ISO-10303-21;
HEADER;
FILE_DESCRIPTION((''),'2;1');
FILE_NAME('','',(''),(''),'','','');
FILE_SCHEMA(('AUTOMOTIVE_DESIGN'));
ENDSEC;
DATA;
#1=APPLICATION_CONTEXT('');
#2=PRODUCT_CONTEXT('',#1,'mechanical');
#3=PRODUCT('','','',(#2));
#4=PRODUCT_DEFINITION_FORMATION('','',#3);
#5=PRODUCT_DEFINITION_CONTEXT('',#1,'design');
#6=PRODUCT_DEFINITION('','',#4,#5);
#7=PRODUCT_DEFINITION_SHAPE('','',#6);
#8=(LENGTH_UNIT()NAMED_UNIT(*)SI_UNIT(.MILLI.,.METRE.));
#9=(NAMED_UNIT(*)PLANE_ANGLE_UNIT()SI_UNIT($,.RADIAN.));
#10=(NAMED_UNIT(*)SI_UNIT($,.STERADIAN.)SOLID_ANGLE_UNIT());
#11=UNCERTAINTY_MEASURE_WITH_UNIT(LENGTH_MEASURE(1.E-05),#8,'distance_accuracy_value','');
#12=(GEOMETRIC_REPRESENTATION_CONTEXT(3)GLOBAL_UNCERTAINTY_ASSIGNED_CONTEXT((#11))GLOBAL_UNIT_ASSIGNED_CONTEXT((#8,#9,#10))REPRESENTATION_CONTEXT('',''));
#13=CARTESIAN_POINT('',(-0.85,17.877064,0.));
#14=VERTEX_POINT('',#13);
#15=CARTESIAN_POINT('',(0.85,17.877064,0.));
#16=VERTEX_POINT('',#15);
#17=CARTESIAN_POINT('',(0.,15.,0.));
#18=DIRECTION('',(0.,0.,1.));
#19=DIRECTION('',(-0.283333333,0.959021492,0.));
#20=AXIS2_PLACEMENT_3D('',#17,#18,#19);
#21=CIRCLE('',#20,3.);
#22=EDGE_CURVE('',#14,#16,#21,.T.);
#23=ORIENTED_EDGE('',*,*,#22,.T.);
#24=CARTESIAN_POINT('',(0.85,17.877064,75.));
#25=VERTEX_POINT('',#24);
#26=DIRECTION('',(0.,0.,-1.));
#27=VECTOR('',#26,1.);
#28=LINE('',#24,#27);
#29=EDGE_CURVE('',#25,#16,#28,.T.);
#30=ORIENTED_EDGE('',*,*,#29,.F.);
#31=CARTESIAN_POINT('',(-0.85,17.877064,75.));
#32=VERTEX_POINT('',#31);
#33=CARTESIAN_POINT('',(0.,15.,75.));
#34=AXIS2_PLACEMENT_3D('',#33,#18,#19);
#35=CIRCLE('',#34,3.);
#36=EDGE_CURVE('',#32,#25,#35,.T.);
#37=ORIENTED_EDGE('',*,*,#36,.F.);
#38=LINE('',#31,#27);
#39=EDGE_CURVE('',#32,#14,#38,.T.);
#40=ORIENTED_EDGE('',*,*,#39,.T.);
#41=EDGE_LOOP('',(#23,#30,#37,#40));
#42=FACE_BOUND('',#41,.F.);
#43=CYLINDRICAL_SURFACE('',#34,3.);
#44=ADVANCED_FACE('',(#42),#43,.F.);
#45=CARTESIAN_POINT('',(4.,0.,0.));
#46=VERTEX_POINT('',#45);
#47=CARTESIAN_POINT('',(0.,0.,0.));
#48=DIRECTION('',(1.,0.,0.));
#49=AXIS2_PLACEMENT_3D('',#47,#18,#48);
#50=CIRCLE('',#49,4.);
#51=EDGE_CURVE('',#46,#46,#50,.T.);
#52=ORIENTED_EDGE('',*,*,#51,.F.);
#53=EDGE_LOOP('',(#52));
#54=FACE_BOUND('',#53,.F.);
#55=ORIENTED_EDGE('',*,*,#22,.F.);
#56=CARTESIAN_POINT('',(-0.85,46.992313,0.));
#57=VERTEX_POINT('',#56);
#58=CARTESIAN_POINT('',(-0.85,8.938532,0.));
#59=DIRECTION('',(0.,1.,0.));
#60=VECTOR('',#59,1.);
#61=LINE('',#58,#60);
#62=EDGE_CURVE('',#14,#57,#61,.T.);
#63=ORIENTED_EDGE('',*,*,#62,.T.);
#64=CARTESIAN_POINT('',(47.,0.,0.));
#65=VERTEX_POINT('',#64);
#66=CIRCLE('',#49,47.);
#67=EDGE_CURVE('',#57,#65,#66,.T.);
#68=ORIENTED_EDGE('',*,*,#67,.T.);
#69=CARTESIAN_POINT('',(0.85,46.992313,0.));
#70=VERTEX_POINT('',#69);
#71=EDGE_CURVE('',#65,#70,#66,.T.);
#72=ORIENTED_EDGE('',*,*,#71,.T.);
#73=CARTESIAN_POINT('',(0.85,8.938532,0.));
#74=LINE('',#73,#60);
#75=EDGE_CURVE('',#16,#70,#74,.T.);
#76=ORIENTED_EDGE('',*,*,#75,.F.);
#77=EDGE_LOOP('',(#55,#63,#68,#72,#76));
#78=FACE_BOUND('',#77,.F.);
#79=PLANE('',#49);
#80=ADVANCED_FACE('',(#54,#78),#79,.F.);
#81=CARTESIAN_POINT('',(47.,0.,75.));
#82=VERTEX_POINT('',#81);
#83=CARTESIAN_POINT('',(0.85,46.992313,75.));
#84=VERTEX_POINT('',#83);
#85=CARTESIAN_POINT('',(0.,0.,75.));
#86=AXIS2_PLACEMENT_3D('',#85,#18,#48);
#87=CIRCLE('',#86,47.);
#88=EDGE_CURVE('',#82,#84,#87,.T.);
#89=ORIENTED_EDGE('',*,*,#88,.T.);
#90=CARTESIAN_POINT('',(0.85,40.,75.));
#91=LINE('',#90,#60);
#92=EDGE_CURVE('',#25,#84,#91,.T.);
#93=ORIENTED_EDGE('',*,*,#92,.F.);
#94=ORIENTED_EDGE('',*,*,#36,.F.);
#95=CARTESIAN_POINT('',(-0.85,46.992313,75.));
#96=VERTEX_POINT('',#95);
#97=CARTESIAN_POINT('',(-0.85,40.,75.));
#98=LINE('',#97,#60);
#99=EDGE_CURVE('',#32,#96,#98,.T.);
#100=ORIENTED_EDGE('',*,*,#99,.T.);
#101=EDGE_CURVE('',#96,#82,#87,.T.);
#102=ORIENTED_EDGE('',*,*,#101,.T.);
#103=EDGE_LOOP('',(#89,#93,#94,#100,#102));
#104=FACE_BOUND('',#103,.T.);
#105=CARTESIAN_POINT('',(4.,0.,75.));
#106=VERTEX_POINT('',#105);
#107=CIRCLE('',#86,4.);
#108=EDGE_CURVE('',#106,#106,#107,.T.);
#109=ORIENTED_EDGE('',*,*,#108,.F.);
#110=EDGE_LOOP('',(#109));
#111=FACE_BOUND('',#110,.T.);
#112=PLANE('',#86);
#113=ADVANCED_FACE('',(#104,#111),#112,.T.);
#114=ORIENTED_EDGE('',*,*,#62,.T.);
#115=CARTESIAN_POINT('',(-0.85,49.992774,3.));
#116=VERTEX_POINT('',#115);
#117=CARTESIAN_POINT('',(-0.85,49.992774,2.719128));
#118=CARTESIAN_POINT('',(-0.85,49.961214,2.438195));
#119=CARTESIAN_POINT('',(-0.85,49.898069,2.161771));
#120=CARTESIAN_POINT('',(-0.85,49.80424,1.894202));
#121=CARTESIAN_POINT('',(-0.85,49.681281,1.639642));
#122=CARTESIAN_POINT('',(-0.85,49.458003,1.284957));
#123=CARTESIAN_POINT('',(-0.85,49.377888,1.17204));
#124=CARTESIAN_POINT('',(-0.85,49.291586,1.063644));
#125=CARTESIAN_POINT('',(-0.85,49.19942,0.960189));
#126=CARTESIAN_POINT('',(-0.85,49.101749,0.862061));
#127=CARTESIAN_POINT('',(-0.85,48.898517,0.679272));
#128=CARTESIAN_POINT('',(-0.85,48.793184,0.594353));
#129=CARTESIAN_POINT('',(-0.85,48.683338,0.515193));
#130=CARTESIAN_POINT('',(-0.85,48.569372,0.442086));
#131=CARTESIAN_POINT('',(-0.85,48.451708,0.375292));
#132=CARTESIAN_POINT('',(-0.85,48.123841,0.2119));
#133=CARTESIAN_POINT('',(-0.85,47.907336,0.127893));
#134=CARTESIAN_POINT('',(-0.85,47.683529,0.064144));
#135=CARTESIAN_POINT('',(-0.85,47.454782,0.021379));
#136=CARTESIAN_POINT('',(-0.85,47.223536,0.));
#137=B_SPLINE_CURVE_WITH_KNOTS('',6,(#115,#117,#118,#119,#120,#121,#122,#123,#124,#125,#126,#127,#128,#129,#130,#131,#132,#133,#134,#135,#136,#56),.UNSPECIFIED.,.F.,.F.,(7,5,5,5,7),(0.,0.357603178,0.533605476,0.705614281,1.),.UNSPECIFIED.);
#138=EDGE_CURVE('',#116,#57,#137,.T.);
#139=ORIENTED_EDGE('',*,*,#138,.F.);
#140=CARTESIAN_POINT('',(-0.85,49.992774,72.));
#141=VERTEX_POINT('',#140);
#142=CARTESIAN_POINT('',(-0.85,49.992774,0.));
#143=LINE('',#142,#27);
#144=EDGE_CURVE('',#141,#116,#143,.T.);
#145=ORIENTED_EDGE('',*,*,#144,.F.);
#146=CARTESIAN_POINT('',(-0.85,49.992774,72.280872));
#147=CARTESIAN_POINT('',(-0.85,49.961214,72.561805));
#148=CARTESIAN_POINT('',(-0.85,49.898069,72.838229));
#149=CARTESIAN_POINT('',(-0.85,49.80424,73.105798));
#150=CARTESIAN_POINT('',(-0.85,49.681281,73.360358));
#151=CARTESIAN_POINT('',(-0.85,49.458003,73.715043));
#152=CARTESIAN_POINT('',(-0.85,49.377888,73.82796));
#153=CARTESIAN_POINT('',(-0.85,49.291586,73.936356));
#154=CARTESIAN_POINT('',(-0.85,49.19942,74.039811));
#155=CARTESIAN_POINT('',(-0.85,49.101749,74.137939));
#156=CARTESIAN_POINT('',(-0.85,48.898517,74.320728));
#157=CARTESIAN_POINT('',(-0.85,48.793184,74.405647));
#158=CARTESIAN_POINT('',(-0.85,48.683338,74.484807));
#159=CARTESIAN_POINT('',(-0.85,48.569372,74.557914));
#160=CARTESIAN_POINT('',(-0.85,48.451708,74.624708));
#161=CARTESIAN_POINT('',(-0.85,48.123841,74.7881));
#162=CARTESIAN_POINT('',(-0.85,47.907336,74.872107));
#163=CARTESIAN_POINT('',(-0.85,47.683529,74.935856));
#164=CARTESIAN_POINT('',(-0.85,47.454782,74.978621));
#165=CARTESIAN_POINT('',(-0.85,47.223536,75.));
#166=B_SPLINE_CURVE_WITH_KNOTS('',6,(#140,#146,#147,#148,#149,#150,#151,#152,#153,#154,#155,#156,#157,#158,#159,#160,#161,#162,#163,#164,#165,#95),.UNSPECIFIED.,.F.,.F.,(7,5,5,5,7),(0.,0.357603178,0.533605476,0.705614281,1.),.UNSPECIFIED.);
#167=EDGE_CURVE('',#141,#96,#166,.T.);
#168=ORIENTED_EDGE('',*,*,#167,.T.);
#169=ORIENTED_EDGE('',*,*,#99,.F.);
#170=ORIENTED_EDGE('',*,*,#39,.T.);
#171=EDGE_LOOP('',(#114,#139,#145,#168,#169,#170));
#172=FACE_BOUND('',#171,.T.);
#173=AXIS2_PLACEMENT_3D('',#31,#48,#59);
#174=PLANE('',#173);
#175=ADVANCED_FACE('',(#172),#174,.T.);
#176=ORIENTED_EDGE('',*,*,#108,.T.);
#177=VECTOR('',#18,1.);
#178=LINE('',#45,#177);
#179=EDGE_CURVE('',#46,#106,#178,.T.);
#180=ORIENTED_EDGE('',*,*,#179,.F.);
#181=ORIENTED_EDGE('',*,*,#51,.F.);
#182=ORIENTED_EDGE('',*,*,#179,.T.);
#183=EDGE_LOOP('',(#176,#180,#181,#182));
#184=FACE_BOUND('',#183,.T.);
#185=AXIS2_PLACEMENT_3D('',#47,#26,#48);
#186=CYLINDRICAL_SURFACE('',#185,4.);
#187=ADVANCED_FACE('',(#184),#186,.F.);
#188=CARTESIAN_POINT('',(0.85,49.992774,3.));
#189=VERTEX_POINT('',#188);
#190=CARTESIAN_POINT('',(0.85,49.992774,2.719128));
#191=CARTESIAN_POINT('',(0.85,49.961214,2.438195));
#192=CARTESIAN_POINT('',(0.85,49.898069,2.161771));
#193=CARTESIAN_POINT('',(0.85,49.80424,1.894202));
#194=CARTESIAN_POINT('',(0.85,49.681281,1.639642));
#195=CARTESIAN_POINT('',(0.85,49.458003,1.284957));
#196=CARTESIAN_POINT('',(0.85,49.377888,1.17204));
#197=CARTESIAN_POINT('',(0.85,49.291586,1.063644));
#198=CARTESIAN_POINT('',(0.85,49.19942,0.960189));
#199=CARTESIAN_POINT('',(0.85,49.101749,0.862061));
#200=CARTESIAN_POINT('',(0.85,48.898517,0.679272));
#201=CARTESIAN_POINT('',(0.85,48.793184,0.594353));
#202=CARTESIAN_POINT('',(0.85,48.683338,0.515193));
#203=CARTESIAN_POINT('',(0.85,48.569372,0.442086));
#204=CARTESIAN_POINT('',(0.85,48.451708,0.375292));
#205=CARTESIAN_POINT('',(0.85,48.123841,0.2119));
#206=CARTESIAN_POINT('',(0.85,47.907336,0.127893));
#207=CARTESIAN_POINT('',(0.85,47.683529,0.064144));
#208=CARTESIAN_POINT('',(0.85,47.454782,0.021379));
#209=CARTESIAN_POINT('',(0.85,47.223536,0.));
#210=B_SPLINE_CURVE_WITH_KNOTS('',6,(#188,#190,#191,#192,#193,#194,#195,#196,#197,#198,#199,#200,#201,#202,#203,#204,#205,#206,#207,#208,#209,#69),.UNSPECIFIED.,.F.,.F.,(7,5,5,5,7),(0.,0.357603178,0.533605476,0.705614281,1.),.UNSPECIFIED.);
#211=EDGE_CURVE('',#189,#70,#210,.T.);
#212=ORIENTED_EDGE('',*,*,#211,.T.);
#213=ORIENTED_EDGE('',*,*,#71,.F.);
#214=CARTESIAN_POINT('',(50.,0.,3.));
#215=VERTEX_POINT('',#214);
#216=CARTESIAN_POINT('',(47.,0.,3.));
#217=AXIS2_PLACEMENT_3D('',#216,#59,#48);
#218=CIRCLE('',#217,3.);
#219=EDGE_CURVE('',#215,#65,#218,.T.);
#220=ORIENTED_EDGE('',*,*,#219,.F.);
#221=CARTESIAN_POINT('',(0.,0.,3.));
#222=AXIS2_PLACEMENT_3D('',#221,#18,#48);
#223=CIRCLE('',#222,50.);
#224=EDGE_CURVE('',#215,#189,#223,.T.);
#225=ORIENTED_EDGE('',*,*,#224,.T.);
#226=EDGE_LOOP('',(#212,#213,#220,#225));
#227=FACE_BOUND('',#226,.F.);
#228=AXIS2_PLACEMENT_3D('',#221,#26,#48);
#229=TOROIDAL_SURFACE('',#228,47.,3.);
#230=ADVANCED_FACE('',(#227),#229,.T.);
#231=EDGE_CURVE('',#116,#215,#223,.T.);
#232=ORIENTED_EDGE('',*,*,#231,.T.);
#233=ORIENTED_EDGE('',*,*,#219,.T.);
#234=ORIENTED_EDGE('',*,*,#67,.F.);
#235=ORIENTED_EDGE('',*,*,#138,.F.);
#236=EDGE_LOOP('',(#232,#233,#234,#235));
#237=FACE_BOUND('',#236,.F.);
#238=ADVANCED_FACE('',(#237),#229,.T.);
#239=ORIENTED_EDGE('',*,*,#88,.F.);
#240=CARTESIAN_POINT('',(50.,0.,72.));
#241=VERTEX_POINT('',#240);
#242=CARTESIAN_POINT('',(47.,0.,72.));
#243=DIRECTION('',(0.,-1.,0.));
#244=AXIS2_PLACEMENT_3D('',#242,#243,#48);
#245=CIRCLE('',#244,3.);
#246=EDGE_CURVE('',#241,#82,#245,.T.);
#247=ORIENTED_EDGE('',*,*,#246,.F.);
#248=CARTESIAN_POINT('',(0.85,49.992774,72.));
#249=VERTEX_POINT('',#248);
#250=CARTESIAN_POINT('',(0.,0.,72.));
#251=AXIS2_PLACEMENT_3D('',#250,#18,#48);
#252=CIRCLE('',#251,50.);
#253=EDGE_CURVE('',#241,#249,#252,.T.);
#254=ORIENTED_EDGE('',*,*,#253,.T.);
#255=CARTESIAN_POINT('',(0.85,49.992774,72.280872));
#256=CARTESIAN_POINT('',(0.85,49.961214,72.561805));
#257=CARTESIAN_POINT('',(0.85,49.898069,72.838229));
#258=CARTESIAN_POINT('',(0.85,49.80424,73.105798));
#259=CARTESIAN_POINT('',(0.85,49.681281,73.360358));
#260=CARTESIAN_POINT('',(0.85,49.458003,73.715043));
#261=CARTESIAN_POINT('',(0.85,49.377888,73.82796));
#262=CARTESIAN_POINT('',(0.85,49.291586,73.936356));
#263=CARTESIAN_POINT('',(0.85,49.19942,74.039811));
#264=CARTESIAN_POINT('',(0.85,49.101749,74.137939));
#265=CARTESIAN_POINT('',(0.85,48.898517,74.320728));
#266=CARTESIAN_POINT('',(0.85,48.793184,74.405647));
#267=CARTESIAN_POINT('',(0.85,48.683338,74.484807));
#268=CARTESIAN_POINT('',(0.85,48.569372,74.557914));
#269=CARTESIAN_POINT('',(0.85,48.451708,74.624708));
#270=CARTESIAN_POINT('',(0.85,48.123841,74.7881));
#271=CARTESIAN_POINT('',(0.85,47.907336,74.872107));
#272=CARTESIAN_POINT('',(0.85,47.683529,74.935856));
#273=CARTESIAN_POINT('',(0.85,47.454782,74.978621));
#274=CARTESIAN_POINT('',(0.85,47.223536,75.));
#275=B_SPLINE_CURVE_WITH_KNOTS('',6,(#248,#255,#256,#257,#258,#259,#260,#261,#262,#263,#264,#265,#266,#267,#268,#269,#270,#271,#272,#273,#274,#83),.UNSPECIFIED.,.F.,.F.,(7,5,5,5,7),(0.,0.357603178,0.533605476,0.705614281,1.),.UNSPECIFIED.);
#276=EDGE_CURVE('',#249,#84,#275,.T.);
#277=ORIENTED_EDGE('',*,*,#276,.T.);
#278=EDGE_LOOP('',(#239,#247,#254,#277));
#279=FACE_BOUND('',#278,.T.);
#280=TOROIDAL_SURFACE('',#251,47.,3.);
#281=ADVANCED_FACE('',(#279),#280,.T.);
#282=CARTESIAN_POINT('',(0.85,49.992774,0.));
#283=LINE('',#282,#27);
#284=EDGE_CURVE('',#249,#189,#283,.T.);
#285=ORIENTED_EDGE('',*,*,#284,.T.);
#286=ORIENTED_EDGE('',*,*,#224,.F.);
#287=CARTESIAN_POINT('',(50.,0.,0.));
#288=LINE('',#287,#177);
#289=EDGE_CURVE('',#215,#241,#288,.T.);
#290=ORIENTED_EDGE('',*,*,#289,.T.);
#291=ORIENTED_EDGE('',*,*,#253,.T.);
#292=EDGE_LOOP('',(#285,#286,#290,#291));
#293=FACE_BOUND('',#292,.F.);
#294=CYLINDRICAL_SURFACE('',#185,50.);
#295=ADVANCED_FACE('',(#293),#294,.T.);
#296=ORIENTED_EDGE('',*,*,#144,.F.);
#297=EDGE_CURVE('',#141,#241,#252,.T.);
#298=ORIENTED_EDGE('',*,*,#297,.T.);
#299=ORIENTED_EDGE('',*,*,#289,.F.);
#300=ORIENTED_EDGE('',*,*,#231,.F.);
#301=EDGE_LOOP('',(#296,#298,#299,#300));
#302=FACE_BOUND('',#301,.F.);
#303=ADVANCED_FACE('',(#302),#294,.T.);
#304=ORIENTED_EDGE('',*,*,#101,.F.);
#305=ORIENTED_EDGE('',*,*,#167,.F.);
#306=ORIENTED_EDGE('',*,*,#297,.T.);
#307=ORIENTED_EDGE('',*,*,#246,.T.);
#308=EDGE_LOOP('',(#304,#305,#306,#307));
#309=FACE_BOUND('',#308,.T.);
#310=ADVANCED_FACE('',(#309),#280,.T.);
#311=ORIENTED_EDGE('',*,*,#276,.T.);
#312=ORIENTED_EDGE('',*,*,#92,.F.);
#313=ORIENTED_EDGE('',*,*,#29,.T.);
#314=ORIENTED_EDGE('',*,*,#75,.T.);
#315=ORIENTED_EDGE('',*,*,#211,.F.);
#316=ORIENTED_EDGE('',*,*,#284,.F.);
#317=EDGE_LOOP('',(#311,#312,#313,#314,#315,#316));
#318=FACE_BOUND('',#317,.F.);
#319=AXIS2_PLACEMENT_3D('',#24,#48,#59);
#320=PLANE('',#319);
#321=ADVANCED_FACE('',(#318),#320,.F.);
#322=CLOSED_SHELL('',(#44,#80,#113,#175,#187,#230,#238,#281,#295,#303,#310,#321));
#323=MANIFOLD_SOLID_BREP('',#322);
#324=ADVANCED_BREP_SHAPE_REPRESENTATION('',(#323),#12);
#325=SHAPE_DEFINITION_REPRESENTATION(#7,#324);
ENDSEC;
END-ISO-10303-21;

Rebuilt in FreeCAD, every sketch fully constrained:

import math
import FreeCAD as App
import Part
import Sketcher

V = App.Vector


def edges_at(feature, points):
    """Names of the edges that pass closest to the given points."""
    edges = feature.Shape.Edges
    near = lambda p: min(range(len(edges)), key=lambda i: edges[i].distToShape(Part.Vertex(*p))[0])
    return sorted({f"Edge{near(p) + 1}" for p in points})

doc = App.newDocument("Part")
params = doc.addObject("Spreadsheet::Sheet", "Params")
for row, (alias, value) in enumerate([
    ("sketch1_diameter", "100 mm"),
    ("sketch1_diameter2", "8 mm"),
    ("pad1_length", "75 mm"),
    ("fillet_radius", "3 mm"),
    ("sketch2_radius", "3 mm"),
    ("sketch2_width", "1.7 mm"),
], start=1):
    params.set(f"A{row}", alias)
    params.set(f"B{row}", "=" + value)
    params.setAlias(f"B{row}", alias)

body = doc.addObject("PartDesign::Body", "Body")

sketch1 = body.newObject("Sketcher::SketchObject", "Sketch")
sketch1.AttachmentSupport = (doc.getObject("XY_Plane"), [""])
sketch1.MapMode = "FlatFace"
sketch1.addGeometry([
    Part.Circle(V(0, 0, 0), V(0, 0, 1), 50),
    Part.Circle(V(0, 0, 0), V(0, 0, 1), 4),
], False)
sketch1.addConstraint([
    Sketcher.Constraint("Coincident", 0, 3, -1, 1),
    Sketcher.Constraint("Coincident", 1, 3, -1, 1),
    Sketcher.Constraint("Diameter", 0, 100.0),
    Sketcher.Constraint("Diameter", 1, 8.0),
])
sketch1.setExpression("Constraints[2]", "Params.sketch1_diameter")
sketch1.setExpression("Constraints[3]", "Params.sketch1_diameter2")
pad1 = body.newObject("PartDesign::Pad", "Pad")
pad1.Profile = sketch1
pad1.setExpression("Length", "Params.pad1_length")
doc.recompute()

fillet = body.newObject("PartDesign::Fillet", "Fillet")
fillet.Base = (pad1, edges_at(pad1, [(-50, 0, 0), (-50, 0, 75)]))
fillet.setExpression("Radius", "Params.fillet_radius")

sketch2 = body.newObject("Sketcher::SketchObject", "Sketch001")
sketch2.AttachmentSupport = (doc.getObject("XY_Plane"), [""])
sketch2.MapMode = "FlatFace"
sketch2.AttachmentOffset = App.Placement(V(0, 0, 75), App.Rotation())
sketch2.addGeometry([
    Part.ArcOfCircle(Part.Circle(V(0, 15, 0), V(0, 0, 1), 3), math.radians(106), math.radians(434)),
    Part.LineSegment(V(0.8, 17.9, 0), V(0.8, 65, 0)),
    Part.LineSegment(V(0.8, 65, 0), V(-0.8, 65, 0)),
    Part.LineSegment(V(-0.8, 65, 0), V(-0.8, 17.9, 0)),
], False)
sketch2.addConstraint([
    Sketcher.Constraint("Coincident", 0, 2, 1, 1),
    Sketcher.Constraint("Coincident", 1, 2, 2, 1),
    Sketcher.Constraint("Coincident", 2, 2, 3, 1),
    Sketcher.Constraint("Coincident", 3, 2, 0, 1),
    Sketcher.Constraint("Vertical", 1),
    Sketcher.Constraint("Horizontal", 2),
    Sketcher.Constraint("Vertical", 3),
    Sketcher.Constraint("Symmetric", 0, 2, 3, 2, -2),
    Sketcher.Constraint("Radius", 0, 3.0),
    Sketcher.Constraint("DistanceX", 2, 2, 2, 1, 1.7),
    Sketcher.Constraint("DistanceY", -1, 1, 0, 3, 15.0),
    Sketcher.Constraint("DistanceY", -1, 1, 1, 2, 65.0),
])
sketch2.setExpression("Constraints[8]", "Params.sketch2_radius")
sketch2.setExpression("Constraints[9]", "Params.sketch2_width")
pocket1 = body.newObject("PartDesign::Pocket", "Pocket")
pocket1.Profile = sketch2
pocket1.Type = "ThroughAll"

doc.recompute()
